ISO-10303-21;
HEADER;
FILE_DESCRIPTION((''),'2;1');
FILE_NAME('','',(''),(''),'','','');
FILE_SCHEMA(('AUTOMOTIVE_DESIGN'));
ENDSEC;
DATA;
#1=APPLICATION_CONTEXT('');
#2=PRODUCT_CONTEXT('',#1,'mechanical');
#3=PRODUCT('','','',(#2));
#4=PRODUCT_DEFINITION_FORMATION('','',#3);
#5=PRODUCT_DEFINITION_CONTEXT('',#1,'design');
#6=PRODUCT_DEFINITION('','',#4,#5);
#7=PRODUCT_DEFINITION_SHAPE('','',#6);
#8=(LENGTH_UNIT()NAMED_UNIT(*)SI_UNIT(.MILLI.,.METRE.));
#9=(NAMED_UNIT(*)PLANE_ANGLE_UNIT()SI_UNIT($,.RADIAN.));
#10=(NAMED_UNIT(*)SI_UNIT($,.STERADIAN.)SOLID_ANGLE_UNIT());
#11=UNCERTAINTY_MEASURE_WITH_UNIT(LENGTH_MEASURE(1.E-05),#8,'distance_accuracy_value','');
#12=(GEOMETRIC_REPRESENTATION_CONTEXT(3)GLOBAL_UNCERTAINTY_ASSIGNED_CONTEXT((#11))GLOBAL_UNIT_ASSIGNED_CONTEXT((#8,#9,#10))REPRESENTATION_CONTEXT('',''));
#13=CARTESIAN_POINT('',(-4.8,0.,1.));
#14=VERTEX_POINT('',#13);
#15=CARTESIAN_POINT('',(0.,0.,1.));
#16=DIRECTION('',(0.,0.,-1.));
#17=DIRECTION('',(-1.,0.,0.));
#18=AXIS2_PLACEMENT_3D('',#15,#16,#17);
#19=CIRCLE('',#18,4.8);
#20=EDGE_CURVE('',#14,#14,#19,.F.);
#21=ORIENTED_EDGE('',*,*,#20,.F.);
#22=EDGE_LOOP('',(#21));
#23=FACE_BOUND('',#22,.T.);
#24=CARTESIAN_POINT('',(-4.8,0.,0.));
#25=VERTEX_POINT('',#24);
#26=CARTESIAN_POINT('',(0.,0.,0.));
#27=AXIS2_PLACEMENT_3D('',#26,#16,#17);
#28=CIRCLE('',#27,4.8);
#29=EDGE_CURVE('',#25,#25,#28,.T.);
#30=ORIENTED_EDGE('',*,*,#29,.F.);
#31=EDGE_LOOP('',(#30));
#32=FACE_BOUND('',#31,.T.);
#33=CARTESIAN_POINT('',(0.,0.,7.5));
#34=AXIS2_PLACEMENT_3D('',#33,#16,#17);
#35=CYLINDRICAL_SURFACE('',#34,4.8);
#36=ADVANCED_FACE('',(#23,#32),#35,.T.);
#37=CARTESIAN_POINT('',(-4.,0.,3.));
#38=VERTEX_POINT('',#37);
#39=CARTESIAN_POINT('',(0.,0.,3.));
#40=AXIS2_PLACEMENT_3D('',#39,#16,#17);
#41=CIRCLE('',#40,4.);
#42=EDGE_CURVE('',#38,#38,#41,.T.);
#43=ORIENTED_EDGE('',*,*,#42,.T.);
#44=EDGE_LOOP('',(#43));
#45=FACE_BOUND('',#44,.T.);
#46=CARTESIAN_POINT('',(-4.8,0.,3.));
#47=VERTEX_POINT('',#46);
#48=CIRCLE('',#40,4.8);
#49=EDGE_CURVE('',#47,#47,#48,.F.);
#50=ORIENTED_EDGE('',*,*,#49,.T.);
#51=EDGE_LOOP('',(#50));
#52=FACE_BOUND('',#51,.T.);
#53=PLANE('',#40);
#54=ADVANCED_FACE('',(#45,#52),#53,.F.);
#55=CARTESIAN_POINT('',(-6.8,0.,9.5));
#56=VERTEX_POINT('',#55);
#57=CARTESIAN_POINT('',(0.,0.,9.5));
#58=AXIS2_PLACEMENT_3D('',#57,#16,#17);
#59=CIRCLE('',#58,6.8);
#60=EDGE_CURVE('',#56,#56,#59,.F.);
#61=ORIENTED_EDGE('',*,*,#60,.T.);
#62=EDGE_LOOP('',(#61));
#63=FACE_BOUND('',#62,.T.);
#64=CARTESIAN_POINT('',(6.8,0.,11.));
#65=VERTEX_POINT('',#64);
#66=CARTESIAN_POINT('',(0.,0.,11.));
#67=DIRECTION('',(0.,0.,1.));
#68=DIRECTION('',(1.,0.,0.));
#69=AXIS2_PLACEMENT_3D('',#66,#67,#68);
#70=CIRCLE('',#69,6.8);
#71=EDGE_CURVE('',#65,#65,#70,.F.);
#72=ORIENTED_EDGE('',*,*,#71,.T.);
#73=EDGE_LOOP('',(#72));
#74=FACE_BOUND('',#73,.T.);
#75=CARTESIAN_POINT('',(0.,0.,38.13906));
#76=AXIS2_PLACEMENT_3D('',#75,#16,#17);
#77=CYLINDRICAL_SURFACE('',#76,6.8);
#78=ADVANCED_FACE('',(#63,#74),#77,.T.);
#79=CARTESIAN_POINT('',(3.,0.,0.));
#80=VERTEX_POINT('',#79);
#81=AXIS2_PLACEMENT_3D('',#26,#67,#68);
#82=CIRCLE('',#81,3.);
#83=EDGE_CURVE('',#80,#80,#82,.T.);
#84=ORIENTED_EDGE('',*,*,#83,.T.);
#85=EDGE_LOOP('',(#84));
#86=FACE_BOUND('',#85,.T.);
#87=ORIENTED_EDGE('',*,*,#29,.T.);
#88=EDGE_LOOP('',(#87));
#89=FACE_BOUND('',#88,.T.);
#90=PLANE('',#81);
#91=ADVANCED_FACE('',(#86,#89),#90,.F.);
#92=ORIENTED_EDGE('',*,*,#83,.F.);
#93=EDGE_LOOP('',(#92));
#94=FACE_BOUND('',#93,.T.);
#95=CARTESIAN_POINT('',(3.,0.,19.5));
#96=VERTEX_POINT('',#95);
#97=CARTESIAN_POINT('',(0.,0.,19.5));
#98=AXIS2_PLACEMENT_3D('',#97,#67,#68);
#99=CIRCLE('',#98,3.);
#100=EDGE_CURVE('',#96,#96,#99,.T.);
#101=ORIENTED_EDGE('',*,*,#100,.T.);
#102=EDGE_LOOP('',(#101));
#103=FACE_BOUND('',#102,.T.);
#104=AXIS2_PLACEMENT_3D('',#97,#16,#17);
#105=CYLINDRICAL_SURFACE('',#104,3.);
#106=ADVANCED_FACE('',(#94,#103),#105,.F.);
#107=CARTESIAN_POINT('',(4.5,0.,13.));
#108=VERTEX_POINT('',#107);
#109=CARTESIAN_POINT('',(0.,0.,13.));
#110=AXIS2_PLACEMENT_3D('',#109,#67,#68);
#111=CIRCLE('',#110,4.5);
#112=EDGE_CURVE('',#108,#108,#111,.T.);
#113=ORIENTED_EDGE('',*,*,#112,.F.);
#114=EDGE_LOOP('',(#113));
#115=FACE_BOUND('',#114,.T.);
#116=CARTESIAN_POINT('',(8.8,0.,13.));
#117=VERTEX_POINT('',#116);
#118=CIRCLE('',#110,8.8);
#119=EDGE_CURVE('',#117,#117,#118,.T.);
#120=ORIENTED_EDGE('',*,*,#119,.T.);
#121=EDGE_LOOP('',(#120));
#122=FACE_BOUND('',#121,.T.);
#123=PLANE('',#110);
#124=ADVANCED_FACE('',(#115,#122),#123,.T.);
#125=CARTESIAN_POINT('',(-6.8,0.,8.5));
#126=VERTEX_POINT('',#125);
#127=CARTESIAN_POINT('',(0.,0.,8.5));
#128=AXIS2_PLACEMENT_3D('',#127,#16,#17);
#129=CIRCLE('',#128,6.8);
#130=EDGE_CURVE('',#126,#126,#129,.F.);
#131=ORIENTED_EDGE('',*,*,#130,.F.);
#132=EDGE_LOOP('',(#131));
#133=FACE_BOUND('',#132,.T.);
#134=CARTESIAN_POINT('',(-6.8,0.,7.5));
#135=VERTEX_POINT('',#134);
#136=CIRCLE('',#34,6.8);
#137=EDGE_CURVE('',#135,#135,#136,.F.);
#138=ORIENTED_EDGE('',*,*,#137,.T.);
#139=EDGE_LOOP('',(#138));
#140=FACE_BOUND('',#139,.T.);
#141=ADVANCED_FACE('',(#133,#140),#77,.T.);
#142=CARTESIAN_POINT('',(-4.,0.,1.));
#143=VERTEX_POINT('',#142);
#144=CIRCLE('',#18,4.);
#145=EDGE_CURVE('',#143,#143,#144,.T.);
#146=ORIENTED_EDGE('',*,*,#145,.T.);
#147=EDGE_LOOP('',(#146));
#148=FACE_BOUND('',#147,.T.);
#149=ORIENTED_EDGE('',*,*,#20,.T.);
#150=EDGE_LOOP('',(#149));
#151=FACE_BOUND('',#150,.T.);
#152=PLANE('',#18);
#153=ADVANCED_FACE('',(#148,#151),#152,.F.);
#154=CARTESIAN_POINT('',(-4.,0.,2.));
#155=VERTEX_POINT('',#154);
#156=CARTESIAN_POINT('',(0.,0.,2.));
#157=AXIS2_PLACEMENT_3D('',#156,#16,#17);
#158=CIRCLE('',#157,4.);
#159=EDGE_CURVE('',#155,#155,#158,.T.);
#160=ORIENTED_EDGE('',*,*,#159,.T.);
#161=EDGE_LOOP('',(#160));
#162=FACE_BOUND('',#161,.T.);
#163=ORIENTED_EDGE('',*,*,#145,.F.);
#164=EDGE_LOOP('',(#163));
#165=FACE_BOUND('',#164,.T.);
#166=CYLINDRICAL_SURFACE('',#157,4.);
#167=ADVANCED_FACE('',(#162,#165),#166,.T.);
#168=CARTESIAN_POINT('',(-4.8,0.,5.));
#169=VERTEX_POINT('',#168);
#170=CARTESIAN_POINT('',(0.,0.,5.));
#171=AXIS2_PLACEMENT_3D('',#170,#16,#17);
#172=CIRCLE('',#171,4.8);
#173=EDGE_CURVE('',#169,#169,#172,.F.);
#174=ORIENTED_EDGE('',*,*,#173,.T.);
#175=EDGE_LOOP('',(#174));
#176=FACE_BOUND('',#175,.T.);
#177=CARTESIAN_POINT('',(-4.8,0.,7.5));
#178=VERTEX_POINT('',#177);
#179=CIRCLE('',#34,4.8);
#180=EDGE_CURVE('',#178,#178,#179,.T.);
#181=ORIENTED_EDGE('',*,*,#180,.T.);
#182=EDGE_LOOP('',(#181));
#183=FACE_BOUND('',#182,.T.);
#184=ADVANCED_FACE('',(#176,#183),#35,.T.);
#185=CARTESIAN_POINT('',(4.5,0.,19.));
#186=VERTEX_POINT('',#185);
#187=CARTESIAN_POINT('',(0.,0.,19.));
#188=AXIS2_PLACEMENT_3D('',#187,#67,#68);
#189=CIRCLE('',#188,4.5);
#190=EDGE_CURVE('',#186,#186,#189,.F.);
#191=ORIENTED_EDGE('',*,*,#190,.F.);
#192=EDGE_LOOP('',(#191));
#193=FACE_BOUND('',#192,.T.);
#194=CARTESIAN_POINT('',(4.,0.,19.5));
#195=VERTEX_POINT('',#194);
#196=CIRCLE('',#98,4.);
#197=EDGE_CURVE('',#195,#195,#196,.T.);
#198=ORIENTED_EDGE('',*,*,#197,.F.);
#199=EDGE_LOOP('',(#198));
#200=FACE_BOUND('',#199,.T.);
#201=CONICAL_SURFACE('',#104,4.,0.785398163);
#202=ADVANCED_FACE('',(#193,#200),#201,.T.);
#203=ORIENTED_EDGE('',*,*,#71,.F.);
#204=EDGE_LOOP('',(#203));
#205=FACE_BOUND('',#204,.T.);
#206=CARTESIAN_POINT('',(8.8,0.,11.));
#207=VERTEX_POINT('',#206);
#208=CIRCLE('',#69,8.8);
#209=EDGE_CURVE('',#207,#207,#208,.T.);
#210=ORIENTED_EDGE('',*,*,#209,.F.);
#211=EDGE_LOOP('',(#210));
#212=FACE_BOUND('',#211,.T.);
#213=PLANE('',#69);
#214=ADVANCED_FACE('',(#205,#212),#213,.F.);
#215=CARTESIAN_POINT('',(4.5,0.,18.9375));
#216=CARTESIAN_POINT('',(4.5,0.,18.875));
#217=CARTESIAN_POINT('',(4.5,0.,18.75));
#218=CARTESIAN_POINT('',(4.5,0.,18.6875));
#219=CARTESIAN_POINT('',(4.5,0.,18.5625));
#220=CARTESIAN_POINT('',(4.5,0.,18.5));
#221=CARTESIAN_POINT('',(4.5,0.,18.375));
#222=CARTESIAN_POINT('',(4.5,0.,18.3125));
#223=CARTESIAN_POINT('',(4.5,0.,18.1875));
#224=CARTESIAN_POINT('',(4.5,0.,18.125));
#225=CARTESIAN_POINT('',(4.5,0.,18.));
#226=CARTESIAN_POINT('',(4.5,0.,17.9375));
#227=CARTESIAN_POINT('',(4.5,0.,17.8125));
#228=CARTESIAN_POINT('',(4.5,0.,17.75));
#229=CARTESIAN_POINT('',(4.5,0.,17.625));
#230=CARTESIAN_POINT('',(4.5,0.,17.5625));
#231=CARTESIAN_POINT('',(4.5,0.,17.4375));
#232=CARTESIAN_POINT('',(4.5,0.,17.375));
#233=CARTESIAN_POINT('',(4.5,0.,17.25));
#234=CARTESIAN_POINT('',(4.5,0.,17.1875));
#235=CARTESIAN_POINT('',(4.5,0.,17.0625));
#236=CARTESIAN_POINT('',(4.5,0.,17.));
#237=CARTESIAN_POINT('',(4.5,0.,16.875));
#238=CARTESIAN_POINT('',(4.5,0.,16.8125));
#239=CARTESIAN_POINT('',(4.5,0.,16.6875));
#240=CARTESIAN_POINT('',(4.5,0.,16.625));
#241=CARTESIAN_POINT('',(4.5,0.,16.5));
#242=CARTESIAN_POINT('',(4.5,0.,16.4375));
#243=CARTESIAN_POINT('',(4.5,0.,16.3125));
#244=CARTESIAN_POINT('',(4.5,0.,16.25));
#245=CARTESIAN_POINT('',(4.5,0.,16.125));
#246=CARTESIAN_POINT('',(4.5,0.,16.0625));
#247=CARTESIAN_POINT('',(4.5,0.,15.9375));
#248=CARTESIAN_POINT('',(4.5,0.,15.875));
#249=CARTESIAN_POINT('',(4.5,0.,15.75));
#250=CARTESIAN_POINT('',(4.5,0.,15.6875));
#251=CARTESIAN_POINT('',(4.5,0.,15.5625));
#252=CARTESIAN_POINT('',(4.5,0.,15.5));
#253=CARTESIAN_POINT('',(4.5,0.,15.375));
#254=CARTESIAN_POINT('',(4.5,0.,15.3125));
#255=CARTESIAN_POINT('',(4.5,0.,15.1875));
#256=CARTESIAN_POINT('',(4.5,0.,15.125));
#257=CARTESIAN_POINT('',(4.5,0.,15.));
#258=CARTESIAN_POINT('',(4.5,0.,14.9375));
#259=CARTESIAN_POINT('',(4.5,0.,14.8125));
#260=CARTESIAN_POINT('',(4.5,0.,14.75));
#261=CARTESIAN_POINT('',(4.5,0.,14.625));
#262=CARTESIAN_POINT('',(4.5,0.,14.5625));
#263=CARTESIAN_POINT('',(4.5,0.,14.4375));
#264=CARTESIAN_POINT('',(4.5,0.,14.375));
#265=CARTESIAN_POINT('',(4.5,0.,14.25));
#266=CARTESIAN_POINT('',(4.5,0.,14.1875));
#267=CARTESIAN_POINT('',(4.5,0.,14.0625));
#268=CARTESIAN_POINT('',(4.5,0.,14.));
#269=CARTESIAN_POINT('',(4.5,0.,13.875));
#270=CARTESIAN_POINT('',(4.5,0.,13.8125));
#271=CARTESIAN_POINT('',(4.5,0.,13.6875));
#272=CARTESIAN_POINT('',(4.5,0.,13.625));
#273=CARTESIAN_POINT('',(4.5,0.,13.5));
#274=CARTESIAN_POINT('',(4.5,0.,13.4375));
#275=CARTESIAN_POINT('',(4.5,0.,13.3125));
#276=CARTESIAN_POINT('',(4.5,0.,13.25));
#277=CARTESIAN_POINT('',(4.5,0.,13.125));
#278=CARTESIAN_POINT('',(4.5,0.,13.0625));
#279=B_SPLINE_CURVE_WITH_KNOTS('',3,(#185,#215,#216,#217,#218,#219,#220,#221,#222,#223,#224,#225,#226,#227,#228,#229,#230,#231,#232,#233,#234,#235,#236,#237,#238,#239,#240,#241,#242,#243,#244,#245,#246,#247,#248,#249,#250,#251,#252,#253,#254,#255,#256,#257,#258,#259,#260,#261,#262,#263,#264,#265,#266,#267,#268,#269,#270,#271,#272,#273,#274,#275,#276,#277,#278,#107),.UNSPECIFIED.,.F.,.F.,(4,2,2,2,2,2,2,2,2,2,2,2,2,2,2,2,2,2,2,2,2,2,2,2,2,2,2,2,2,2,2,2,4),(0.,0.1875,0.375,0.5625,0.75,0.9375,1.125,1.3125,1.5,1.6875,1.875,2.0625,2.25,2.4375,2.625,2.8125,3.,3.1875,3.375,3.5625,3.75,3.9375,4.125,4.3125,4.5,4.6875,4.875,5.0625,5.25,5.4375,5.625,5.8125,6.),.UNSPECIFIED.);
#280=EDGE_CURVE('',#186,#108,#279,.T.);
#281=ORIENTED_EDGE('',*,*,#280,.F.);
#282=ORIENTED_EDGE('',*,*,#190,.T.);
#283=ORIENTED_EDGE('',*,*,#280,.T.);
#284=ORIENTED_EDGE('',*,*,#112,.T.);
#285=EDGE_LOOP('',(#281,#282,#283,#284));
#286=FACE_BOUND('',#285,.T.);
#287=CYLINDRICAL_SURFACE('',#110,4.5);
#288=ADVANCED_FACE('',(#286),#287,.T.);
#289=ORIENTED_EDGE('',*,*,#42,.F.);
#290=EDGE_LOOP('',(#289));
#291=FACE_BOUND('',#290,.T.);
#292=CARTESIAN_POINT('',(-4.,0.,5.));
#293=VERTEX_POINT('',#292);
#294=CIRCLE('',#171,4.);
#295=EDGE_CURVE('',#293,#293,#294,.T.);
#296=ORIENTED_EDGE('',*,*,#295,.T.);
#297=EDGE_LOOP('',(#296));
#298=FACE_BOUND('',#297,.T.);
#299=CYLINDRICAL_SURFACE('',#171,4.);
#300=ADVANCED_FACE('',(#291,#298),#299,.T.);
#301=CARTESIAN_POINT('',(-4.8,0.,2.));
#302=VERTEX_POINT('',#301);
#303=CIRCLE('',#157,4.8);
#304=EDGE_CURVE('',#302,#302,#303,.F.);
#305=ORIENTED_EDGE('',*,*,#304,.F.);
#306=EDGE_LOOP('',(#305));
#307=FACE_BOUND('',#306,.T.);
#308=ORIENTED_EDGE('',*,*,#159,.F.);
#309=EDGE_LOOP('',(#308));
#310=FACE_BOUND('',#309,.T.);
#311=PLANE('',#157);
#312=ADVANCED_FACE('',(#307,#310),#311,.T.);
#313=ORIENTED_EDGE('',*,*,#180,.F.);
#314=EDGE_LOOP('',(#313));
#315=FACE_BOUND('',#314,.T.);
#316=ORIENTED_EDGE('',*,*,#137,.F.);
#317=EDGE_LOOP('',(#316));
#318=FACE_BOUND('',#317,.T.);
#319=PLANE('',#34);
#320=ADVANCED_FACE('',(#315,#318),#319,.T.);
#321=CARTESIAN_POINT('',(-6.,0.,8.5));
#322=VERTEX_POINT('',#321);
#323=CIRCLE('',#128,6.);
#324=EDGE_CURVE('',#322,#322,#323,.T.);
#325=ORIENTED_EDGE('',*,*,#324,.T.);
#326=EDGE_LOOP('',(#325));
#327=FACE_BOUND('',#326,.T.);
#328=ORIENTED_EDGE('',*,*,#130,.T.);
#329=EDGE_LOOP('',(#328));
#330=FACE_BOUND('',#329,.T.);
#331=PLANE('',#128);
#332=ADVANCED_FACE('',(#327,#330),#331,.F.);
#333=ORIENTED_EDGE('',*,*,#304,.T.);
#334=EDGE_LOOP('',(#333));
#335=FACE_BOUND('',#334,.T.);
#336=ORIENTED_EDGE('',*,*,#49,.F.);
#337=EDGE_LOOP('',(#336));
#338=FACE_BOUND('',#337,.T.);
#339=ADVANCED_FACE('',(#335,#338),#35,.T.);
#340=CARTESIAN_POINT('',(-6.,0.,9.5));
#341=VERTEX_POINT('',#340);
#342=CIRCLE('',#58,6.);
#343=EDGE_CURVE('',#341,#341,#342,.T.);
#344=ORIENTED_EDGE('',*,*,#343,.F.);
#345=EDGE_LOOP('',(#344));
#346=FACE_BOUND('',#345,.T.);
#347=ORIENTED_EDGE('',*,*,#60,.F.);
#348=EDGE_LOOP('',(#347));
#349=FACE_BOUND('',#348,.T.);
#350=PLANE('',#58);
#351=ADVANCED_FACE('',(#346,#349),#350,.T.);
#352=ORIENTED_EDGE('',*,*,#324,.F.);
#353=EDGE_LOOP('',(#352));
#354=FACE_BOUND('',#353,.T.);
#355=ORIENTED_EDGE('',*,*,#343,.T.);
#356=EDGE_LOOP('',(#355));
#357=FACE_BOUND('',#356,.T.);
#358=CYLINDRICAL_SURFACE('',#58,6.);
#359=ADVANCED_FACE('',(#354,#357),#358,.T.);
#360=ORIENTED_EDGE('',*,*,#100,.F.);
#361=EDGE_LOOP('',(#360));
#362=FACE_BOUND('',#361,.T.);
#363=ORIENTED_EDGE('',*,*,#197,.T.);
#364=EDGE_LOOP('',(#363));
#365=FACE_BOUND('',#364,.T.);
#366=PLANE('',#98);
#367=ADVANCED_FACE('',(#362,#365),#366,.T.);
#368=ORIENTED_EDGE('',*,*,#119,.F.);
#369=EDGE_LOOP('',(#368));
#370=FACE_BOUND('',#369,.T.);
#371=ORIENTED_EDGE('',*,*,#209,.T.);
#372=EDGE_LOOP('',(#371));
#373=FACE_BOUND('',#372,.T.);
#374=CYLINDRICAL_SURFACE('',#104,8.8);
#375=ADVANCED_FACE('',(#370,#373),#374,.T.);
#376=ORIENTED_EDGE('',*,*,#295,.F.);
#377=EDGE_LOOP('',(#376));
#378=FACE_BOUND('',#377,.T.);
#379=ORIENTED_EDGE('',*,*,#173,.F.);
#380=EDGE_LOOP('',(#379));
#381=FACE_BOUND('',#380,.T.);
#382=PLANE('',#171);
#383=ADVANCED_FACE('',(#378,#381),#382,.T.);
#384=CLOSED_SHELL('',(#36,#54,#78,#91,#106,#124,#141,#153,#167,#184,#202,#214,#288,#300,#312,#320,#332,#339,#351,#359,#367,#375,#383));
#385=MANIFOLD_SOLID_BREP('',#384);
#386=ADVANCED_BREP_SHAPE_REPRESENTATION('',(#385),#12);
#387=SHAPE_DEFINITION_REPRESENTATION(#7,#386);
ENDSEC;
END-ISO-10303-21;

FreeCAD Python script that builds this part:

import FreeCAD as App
import Part
import Sketcher
Q = App.Units.Quantity


def edges_at(feature, points):
    """Names of the edges that pass closest to the given points."""
    edges = feature.Shape.Edges
    near = lambda p: min(range(len(edges)), key=lambda i: edges[i].distToShape(Part.Vertex(*p))[0])
    return sorted({f"Edge{near(p) + 1}" for p in points})


def add_polygon(sketch, points):
    """Adds a closed chain of lines whose ends are joined by coincident constraints."""
    first, n = sketch.GeometryCount, len(points)
    for a, b in zip(points, points[1:] + points[:1]):
        sketch.addGeometry(Part.LineSegment(App.Vector(*a, 0), App.Vector(*b, 0)), False)
    for i in range(n):
        sketch.addConstraint(Sketcher.Constraint("Coincident", first + i, 2, first + (i + 1) % n, 1))

doc = App.newDocument("Part")
body = doc.addObject("PartDesign::Body", "Body")

# Sketch on XY plane
sketch1 = doc.addObject("Sketcher::SketchObject", "Sketch")
body.addObject(sketch1)
sketch1.AttachmentSupport = (doc.XY_Plane, [""])
sketch1.MapMode = "FlatFace"
sketch1.addGeometry([
    Part.Circle(App.Vector(0, 0, 0), App.Vector(0, 0, 1), 8.8),
    Part.Circle(App.Vector(0, 0, 0), App.Vector(0, 0, 1), 3),
], False)
sketch1.addConstraint([
    Sketcher.Constraint("Coincident", 0, 3, -1, 1),
    Sketcher.Constraint("Coincident", 1, 3, -1, 1),
    Sketcher.Constraint("Diameter", 1, Q("6 mm")),
    Sketcher.Constraint("Diameter", 0, Q("17.6 mm")),
])
pad1 = doc.addObject("PartDesign::Pad", "Pad")
body.addObject(pad1)
pad1.Profile = sketch1
pad1.Length = 19.5

# Sketch on XY plane
sketch2 = doc.addObject("Sketcher::SketchObject", "Sketch001")
body.addObject(sketch2)
sketch2.AttachmentSupport = (doc.XY_Plane, [""])
sketch2.MapMode = "FlatFace"
sketch2.AttachmentOffset = App.Placement(App.Vector(0, 0, 19.5), App.Rotation())
add_polygon(sketch2, [(-12.962, 12.962), (-12.962, -12.962), (12.962, -12.962), (12.962, 12.962)])  # lines 0-3
sketch2.addGeometry(Part.Circle(App.Vector(0, 0, 0), App.Vector(0, 0, 1), 4.5), False)  # 4
sketch2.addConstraint([
    Sketcher.Constraint("Vertical", 0),
    Sketcher.Constraint("Horizontal", 1),
    Sketcher.Constraint("Vertical", 2),
    Sketcher.Constraint("Horizontal", 3),
    Sketcher.Constraint("Coincident", 4, 3, -1, 1),
    Sketcher.Constraint("Symmetric", 0, 2, 2, 2, -1, 1),
    Sketcher.Constraint("Equal", 3, 0),
    Sketcher.Constraint("Diameter", 4, Q("9 mm")),
    Sketcher.Constraint("DistanceX", 1, 1, 1, 2, Q("25.924 mm")),
])
pocket1 = doc.addObject("PartDesign::Pocket", "Pocket")
body.addObject(pocket1)
pocket1.Profile = sketch2
pocket1.Length = 6.5

# Sketch on XY plane
sketch3 = doc.addObject("Sketcher::SketchObject", "Sketch002")
body.addObject(sketch3)
sketch3.AttachmentSupport = (doc.XY_Plane, [""])
sketch3.MapMode = "FlatFace"
add_polygon(sketch3, [(12.962, 12.962), (12.962, -12.962), (-12.962, -12.962), (-12.962, 12.962)])  # lines 0-3
sketch3.addGeometry(Part.Circle(App.Vector(0, 0, 0), App.Vector(0, 0, 1), 6.8), False)  # 4
sketch3.addConstraint([
    Sketcher.Constraint("Vertical", 0),
    Sketcher.Constraint("Horizontal", 1),
    Sketcher.Constraint("Vertical", 2),
    Sketcher.Constraint("Horizontal", 3),
    Sketcher.Constraint("Coincident", 4, 3, -1, 1),
    Sketcher.Constraint("Symmetric", 0, 2, 2, 2, -1, 1),
    Sketcher.Constraint("Equal", 3, 0),
    Sketcher.Constraint("Diameter", 4, Q("13.6 mm")),
    Sketcher.Constraint("DistanceX", 1, 2, 1, 1, Q("25.924 mm")),
])
pocket2 = doc.addObject("PartDesign::Pocket", "Pocket001")
body.addObject(pocket2)
pocket2.Profile = sketch3
pocket2.Length = 11
pocket2.Reversed = True

# Sketch on XY plane
sketch4 = doc.addObject("Sketcher::SketchObject", "Sketch003")
body.addObject(sketch4)
sketch4.AttachmentSupport = (doc.XY_Plane, [""])
sketch4.MapMode = "FlatFace"
add_polygon(sketch4, [(12.962, 12.962), (12.962, -12.962), (-12.962, -12.962), (-12.962, 12.962)])  # lines 0-3
sketch4.addGeometry(Part.Circle(App.Vector(0, 0, 0), App.Vector(0, 0, 1), 4.8), False)  # 4
sketch4.addConstraint([
    Sketcher.Constraint("Vertical", 0),
    Sketcher.Constraint("Horizontal", 1),
    Sketcher.Constraint("Vertical", 2),
    Sketcher.Constraint("Horizontal", 3),
    Sketcher.Constraint("Coincident", 4, 3, -1, 1),
    Sketcher.Constraint("Symmetric", 0, 2, 2, 2, -1, 1),
    Sketcher.Constraint("Equal", 3, 0),
    Sketcher.Constraint("Diameter", 4, Q("9.6 mm")),
    Sketcher.Constraint("DistanceX", 1, 2, 1, 1, Q("25.924 mm")),
])
pocket3 = doc.addObject("PartDesign::Pocket", "Pocket002")
body.addObject(pocket3)
pocket3.Profile = sketch4
pocket3.Length = 7.5
pocket3.Reversed = True

# Sketch on XY plane
sketch5 = doc.addObject("Sketcher::SketchObject", "Sketch004")
body.addObject(sketch5)
sketch5.AttachmentSupport = (doc.XY_Plane, [""])
sketch5.MapMode = "FlatFace"
sketch5.AttachmentOffset = App.Placement(App.Vector(0, 0, 8.5), App.Rotation())
add_polygon(sketch5, [(12.962, 12.962), (12.962, -12.962), (-12.962, -12.962), (-12.962, 12.962)])  # lines 0-3
sketch5.addGeometry(Part.Circle(App.Vector(0, 0, 0), App.Vector(0, 0, 1), 6), False)  # 4
sketch5.addConstraint([
    Sketcher.Constraint("Vertical", 0),
    Sketcher.Constraint("Horizontal", 1),
    Sketcher.Constraint("Vertical", 2),
    Sketcher.Constraint("Horizontal", 3),
    Sketcher.Constraint("Coincident", 4, 3, -1, 1),
    Sketcher.Constraint("Symmetric", 0, 2, 2, 2, -1, 1),
    Sketcher.Constraint("Equal", 3, 0),
    Sketcher.Constraint("Diameter", 4, Q("12 mm")),
    Sketcher.Constraint("DistanceX", 1, 2, 1, 1, Q("25.924 mm")),
])
pocket4 = doc.addObject("PartDesign::Pocket", "Pocket003")
body.addObject(pocket4)
pocket4.Profile = sketch5
pocket4.Length = 1
pocket4.Reversed = True

# Sketch on XY plane
sketch6 = doc.addObject("Sketcher::SketchObject", "Sketch005")
body.addObject(sketch6)
sketch6.AttachmentSupport = (doc.XY_Plane, [""])
sketch6.MapMode = "FlatFace"
sketch6.AttachmentOffset = App.Placement(App.Vector(0, 0, 1), App.Rotation())
add_polygon(sketch6, [(12.962, 12.962), (12.962, -12.962), (-12.962, -12.962), (-12.962, 12.962)])  # lines 0-3
sketch6.addGeometry(Part.Circle(App.Vector(0, 0, 0), App.Vector(0, 0, 1), 4), False)  # 4
sketch6.addConstraint([
    Sketcher.Constraint("Vertical", 0),
    Sketcher.Constraint("Horizontal", 1),
    Sketcher.Constraint("Vertical", 2),
    Sketcher.Constraint("Horizontal", 3),
    Sketcher.Constraint("Coincident", 4, 3, -1, 1),
    Sketcher.Constraint("Symmetric", 0, 2, 2, 2, -1, 1),
    Sketcher.Constraint("Equal", 3, 0),
    Sketcher.Constraint("Diameter", 4, Q("8 mm")),
    Sketcher.Constraint("DistanceX", 1, 2, 1, 1, Q("25.924 mm")),
])
pocket5 = doc.addObject("PartDesign::Pocket", "Pocket004")
body.addObject(pocket5)
pocket5.Profile = sketch6
pocket5.Length = 1
pocket5.Reversed = True

# Sketch on XY plane
sketch7 = doc.addObject("Sketcher::SketchObject", "Sketch006")
body.addObject(sketch7)
sketch7.AttachmentSupport = (doc.XY_Plane, [""])
sketch7.MapMode = "FlatFace"
sketch7.AttachmentOffset = App.Placement(App.Vector(0, 0, 3), App.Rotation())
add_polygon(sketch7, [(12.962, 12.962), (12.962, -12.962), (-12.962, -12.962), (-12.962, 12.962)])  # lines 0-3
sketch7.addGeometry(Part.Circle(App.Vector(0, 0, 0), App.Vector(0, 0, 1), 4), False)  # 4
sketch7.addConstraint([
    Sketcher.Constraint("Vertical", 0),
    Sketcher.Constraint("Horizontal", 1),
    Sketcher.Constraint("Vertical", 2),
    Sketcher.Constraint("Horizontal", 3),
    Sketcher.Constraint("Coincident", 4, 3, -1, 1),
    Sketcher.Constraint("Symmetric", 0, 2, 2, 2, -1, 1),
    Sketcher.Constraint("Equal", 3, 0),
    Sketcher.Constraint("Diameter", 4, Q("8 mm")),
    Sketcher.Constraint("DistanceX", 1, 2, 1, 1, Q("25.924 mm")),
])
pocket6 = doc.addObject("PartDesign::Pocket", "Pocket005")
body.addObject(pocket6)
pocket6.Profile = sketch7
pocket6.Length = 2
pocket6.Reversed = True
doc.recompute()

chamfer = doc.addObject("PartDesign::Chamfer", "Chamfer")
body.addObject(chamfer)
chamfer.Base = (pocket6, edges_at(pocket6, [(-4.5, 0, 19.5)]))
chamfer.Size = 0.5

doc.recompute()
